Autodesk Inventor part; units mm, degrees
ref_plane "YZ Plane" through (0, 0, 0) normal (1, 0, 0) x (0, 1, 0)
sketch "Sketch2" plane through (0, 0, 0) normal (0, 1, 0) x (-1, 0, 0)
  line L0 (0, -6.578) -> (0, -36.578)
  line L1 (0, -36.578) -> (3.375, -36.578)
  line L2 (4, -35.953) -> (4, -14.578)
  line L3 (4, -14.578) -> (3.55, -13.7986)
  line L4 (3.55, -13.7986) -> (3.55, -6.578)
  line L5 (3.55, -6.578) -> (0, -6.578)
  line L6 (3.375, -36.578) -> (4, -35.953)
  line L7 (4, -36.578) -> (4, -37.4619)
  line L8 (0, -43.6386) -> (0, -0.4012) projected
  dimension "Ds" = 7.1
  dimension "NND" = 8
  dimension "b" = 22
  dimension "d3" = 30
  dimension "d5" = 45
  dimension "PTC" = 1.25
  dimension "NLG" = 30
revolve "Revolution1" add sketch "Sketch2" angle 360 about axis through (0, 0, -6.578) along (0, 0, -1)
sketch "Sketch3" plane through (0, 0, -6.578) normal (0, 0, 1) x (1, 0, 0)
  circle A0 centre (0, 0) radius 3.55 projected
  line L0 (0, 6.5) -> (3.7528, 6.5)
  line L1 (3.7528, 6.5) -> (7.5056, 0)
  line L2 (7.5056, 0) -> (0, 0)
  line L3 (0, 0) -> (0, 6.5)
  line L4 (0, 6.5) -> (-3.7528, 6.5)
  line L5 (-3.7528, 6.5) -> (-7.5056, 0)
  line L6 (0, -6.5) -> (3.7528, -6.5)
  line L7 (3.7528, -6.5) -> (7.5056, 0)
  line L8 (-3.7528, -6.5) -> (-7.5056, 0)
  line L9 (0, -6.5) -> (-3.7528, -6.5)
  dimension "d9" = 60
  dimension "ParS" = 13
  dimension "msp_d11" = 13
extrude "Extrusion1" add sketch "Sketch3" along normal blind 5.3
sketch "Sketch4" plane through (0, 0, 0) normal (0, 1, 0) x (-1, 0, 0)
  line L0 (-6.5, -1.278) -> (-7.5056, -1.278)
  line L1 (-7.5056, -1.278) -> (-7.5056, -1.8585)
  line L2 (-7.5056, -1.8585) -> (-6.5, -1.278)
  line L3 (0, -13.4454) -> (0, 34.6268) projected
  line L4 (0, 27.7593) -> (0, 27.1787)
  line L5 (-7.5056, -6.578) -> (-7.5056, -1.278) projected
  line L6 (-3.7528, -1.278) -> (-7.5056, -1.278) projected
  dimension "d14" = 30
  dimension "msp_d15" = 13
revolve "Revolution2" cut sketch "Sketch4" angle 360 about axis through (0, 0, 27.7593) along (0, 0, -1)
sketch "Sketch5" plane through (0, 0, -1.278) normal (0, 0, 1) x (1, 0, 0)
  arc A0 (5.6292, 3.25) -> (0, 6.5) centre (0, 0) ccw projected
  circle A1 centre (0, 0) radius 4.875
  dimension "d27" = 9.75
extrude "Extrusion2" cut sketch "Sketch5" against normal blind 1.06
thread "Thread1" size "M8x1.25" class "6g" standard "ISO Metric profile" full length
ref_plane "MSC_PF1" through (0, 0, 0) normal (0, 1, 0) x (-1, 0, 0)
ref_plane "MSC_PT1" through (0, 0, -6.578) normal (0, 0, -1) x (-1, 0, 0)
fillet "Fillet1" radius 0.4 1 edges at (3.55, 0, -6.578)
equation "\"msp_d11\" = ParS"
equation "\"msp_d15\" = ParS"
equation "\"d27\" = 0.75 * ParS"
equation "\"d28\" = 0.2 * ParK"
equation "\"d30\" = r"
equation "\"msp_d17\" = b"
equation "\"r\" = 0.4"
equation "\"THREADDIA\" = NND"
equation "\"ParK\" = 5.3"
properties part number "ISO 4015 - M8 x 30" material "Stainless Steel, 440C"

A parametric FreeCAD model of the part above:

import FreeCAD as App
import Part
import Sketcher
Q = App.Units.Quantity


def edges_at(feature, points):
    """Names of the edges that pass closest to the given points."""
    edges = feature.Shape.Edges
    near = lambda p: min(range(len(edges)), key=lambda i: edges[i].distToShape(Part.Vertex(*p))[0])
    return sorted({f"Edge{near(p) + 1}" for p in points})

doc = App.newDocument("Part")
params = doc.addObject("Spreadsheet::Sheet", "Params")
for row, (alias, value) in enumerate([
    ("sketch1_height", "30 mm"),
    ("sketch1_length", "0.9 mm"),
    ("revolution_angle", "360 deg"),
    ("pad1_length", "5.3 mm"),
    ("groove_angle", "360 deg"),
    ("sketch4_diameter", "9.75 mm"),
    ("pocket1_length", "1.06 mm"),
    ("fillet_radius", "0.4 mm"),
], start=1):
    params.set(f"A{row}", alias)
    params.set(f"B{row}", "=" + value)
    params.setAlias(f"B{row}", alias)

body = doc.addObject("PartDesign::Body", "Body")

# Sketch on XZ plane
sketch1 = body.newObject("Sketcher::SketchObject", "Sketch")
sketch1.AttachmentSupport = (doc.getObject("XZ_Plane"), [""])
sketch1.MapMode = "FlatFace"
sketch1.addGeometry([
    Part.LineSegment(App.Vector(-3.55, -6.578, 0), App.Vector(0, -6.578, 0)),  # 0
    Part.LineSegment(App.Vector(0, -6.578, 0), App.Vector(0, -36.578, 0)),  # 1
    Part.LineSegment(App.Vector(0, -36.578, 0), App.Vector(-3.375, -36.578, 0)),  # 2
    Part.LineSegment(App.Vector(-3.375, -36.578, 0), App.Vector(-4, -35.953, 0)),  # 3
    Part.LineSegment(App.Vector(-4, -35.953, 0), App.Vector(-4, -14.578, 0)),  # 4
    Part.LineSegment(App.Vector(-4, -14.578, 0), App.Vector(-3.55, -13.7986, 0)),  # 5
    Part.LineSegment(App.Vector(-3.55, -13.7986, 0), App.Vector(-3.55, -6.578, 0)),  # 6
], False)
sketch1.addConstraint([
    Sketcher.Constraint("Coincident", 0, 2, 1, 1),
    Sketcher.Constraint("Coincident", 1, 2, 2, 1),
    Sketcher.Constraint("Coincident", 2, 2, 3, 1),
    Sketcher.Constraint("Coincident", 3, 2, 4, 1),
    Sketcher.Constraint("Coincident", 4, 2, 5, 1),
    Sketcher.Constraint("Coincident", 5, 2, 6, 1),
    Sketcher.Constraint("Coincident", 6, 2, 0, 1),
    Sketcher.Constraint("Horizontal", 0),
    Sketcher.Constraint("Vertical", 1),
    Sketcher.Constraint("Horizontal", 2),
    Sketcher.Constraint("Vertical", 4),
    Sketcher.Constraint("Vertical", 6),
    Sketcher.Constraint("PointOnObject", 0, 2, -2),
    Sketcher.Constraint("DistanceY", 1, 2, 1, 1, 30.0),
    Sketcher.Constraint("DistanceY", 4, 2, 0, 2, 8.0),
    Sketcher.Constraint("Angle", 3, Q("135 deg")),
    Sketcher.Constraint("Angle", 5, Q("59.9993 deg")),
    Sketcher.Constraint("DistanceX", 3, 2, -1, 1, 4.0),
    Sketcher.Constraint("Distance", 5, 0.9),
    Sketcher.Constraint("DistanceX", 2, 2, 2, 1, 3.375),
    Sketcher.Constraint("DistanceY", 0, 2, -1, 1, 6.578),
])
sketch1.setExpression("Constraints[13]", "Params.sketch1_height")
sketch1.setExpression("Constraints[18]", "Params.sketch1_length")
revolution = body.newObject("PartDesign::Revolution", "Revolution")
revolution.Profile = sketch1
revolution.ReferenceAxis = (sketch1, ["V_Axis"])
revolution.setExpression("Angle", "Params.revolution_angle")

# Sketch on XY plane
sketch2 = body.newObject("Sketcher::SketchObject", "Sketch001")
sketch2.AttachmentSupport = (doc.getObject("XY_Plane"), [""])
sketch2.MapMode = "FlatFace"
sketch2.AttachmentOffset = App.Placement(App.Vector(0, 0, -6.578), App.Rotation())
sketch2.addGeometry([
    Part.LineSegment(App.Vector(3.7528, 6.5, 0), App.Vector(-3.7528, 6.5, 0)),  # 0
    Part.LineSegment(App.Vector(-3.7528, 6.5, 0), App.Vector(-7.5056, 0, 0)),  # 1
    Part.LineSegment(App.Vector(-7.5056, 0, 0), App.Vector(-3.7528, -6.5, 0)),  # 2
    Part.LineSegment(App.Vector(-3.7528, -6.5, 0), App.Vector(3.7528, -6.5, 0)),  # 3
    Part.LineSegment(App.Vector(3.7528, -6.5, 0), App.Vector(7.5056, 0, 0)),  # 4
    Part.LineSegment(App.Vector(7.5056, 0, 0), App.Vector(3.7528, 6.5, 0)),  # 5
], False)
sketch2.addConstraint([
    Sketcher.Constraint("Coincident", 0, 2, 1, 1),
    Sketcher.Constraint("Coincident", 1, 2, 2, 1),
    Sketcher.Constraint("Coincident", 2, 2, 3, 1),
    Sketcher.Constraint("Coincident", 3, 2, 4, 1),
    Sketcher.Constraint("Coincident", 4, 2, 5, 1),
    Sketcher.Constraint("Coincident", 5, 2, 0, 1),
    Sketcher.Constraint("Horizontal", 0),
    Sketcher.Constraint("Horizontal", 3),
    Sketcher.Constraint("Symmetric", 0, 2, 3, 2, -1, 1),
    Sketcher.Constraint("Symmetric", 1, 2, 4, 2, -1, 1),
    Sketcher.Constraint("PointOnObject", 1, 2, -1),
    Sketcher.Constraint("Parallel", 2, 5),
    Sketcher.Constraint("Vertical", 0, 2, 2, 2),
    Sketcher.Constraint("Angle", 2, Q("-59.9998 deg")),
    Sketcher.Constraint("DistanceY", 2, 2, 0, 2, 13.0),
    Sketcher.Constraint("DistanceX", 0, 2, 0, 1, 7.5056),
])
pad1 = body.newObject("PartDesign::Pad", "Pad")
pad1.Profile = sketch2
pad1.setExpression("Length", "Params.pad1_length")

# Sketch on XZ plane
sketch3 = body.newObject("Sketcher::SketchObject", "Sketch002")
sketch3.AttachmentSupport = (doc.getObject("XZ_Plane"), [""])
sketch3.MapMode = "FlatFace"
sketch3.addGeometry([
    Part.LineSegment(App.Vector(7.5056, -1.8585, 0), App.Vector(6.5, -1.278, 0)),
    Part.LineSegment(App.Vector(6.5, -1.278, 0), App.Vector(7.5056, -1.278, 0)),
    Part.LineSegment(App.Vector(7.5056, -1.278, 0), App.Vector(7.5056, -1.8585, 0)),
], False)
sketch3.addConstraint([
    Sketcher.Constraint("Coincident", 0, 2, 1, 1),
    Sketcher.Constraint("Coincident", 1, 2, 2, 1),
    Sketcher.Constraint("Coincident", 2, 2, 0, 1),
    Sketcher.Constraint("Horizontal", 1),
    Sketcher.Constraint("Vertical", 2),
    Sketcher.Constraint("DistanceX", -1, 1, 0, 2, 6.5),
    Sketcher.Constraint("DistanceX", 1, 1, 1, 2, 1.0056),
    Sketcher.Constraint("DistanceY", 2, 2, 2, 1, 0.5805),
    Sketcher.Constraint("DistanceY", 0, 2, -1, 1, 1.278),
])
groove = body.newObject("PartDesign::Groove", "Groove")
groove.Profile = sketch3
groove.ReferenceAxis = (sketch3, ["V_Axis"])
groove.setExpression("Angle", "Params.groove_angle")

# Sketch on XY plane
sketch4 = body.newObject("Sketcher::SketchObject", "Sketch003")
sketch4.AttachmentSupport = (doc.getObject("XY_Plane"), [""])
sketch4.MapMode = "FlatFace"
sketch4.AttachmentOffset = App.Placement(App.Vector(0, 0, -1.278), App.Rotation())
sketch4.addGeometry(Part.Circle(App.Vector(0, 0, 0), App.Vector(0, 0, 1), 4.875), False)
sketch4.addConstraint([
    Sketcher.Constraint("Coincident", 0, 3, -1, 1),
    Sketcher.Constraint("Diameter", 0, 9.75),
])
sketch4.setExpression("Constraints[1]", "Params.sketch4_diameter")
pocket1 = body.newObject("PartDesign::Pocket", "Pocket")
pocket1.Profile = sketch4
pocket1.setExpression("Length", "Params.pocket1_length")
doc.recompute()

fillet = body.newObject("PartDesign::Fillet", "Fillet")
fillet.Base = (pocket1, edges_at(pocket1, [(3.55, 0, -6.578)]))
fillet.setExpression("Radius", "Params.fillet_radius")

doc.recompute()
